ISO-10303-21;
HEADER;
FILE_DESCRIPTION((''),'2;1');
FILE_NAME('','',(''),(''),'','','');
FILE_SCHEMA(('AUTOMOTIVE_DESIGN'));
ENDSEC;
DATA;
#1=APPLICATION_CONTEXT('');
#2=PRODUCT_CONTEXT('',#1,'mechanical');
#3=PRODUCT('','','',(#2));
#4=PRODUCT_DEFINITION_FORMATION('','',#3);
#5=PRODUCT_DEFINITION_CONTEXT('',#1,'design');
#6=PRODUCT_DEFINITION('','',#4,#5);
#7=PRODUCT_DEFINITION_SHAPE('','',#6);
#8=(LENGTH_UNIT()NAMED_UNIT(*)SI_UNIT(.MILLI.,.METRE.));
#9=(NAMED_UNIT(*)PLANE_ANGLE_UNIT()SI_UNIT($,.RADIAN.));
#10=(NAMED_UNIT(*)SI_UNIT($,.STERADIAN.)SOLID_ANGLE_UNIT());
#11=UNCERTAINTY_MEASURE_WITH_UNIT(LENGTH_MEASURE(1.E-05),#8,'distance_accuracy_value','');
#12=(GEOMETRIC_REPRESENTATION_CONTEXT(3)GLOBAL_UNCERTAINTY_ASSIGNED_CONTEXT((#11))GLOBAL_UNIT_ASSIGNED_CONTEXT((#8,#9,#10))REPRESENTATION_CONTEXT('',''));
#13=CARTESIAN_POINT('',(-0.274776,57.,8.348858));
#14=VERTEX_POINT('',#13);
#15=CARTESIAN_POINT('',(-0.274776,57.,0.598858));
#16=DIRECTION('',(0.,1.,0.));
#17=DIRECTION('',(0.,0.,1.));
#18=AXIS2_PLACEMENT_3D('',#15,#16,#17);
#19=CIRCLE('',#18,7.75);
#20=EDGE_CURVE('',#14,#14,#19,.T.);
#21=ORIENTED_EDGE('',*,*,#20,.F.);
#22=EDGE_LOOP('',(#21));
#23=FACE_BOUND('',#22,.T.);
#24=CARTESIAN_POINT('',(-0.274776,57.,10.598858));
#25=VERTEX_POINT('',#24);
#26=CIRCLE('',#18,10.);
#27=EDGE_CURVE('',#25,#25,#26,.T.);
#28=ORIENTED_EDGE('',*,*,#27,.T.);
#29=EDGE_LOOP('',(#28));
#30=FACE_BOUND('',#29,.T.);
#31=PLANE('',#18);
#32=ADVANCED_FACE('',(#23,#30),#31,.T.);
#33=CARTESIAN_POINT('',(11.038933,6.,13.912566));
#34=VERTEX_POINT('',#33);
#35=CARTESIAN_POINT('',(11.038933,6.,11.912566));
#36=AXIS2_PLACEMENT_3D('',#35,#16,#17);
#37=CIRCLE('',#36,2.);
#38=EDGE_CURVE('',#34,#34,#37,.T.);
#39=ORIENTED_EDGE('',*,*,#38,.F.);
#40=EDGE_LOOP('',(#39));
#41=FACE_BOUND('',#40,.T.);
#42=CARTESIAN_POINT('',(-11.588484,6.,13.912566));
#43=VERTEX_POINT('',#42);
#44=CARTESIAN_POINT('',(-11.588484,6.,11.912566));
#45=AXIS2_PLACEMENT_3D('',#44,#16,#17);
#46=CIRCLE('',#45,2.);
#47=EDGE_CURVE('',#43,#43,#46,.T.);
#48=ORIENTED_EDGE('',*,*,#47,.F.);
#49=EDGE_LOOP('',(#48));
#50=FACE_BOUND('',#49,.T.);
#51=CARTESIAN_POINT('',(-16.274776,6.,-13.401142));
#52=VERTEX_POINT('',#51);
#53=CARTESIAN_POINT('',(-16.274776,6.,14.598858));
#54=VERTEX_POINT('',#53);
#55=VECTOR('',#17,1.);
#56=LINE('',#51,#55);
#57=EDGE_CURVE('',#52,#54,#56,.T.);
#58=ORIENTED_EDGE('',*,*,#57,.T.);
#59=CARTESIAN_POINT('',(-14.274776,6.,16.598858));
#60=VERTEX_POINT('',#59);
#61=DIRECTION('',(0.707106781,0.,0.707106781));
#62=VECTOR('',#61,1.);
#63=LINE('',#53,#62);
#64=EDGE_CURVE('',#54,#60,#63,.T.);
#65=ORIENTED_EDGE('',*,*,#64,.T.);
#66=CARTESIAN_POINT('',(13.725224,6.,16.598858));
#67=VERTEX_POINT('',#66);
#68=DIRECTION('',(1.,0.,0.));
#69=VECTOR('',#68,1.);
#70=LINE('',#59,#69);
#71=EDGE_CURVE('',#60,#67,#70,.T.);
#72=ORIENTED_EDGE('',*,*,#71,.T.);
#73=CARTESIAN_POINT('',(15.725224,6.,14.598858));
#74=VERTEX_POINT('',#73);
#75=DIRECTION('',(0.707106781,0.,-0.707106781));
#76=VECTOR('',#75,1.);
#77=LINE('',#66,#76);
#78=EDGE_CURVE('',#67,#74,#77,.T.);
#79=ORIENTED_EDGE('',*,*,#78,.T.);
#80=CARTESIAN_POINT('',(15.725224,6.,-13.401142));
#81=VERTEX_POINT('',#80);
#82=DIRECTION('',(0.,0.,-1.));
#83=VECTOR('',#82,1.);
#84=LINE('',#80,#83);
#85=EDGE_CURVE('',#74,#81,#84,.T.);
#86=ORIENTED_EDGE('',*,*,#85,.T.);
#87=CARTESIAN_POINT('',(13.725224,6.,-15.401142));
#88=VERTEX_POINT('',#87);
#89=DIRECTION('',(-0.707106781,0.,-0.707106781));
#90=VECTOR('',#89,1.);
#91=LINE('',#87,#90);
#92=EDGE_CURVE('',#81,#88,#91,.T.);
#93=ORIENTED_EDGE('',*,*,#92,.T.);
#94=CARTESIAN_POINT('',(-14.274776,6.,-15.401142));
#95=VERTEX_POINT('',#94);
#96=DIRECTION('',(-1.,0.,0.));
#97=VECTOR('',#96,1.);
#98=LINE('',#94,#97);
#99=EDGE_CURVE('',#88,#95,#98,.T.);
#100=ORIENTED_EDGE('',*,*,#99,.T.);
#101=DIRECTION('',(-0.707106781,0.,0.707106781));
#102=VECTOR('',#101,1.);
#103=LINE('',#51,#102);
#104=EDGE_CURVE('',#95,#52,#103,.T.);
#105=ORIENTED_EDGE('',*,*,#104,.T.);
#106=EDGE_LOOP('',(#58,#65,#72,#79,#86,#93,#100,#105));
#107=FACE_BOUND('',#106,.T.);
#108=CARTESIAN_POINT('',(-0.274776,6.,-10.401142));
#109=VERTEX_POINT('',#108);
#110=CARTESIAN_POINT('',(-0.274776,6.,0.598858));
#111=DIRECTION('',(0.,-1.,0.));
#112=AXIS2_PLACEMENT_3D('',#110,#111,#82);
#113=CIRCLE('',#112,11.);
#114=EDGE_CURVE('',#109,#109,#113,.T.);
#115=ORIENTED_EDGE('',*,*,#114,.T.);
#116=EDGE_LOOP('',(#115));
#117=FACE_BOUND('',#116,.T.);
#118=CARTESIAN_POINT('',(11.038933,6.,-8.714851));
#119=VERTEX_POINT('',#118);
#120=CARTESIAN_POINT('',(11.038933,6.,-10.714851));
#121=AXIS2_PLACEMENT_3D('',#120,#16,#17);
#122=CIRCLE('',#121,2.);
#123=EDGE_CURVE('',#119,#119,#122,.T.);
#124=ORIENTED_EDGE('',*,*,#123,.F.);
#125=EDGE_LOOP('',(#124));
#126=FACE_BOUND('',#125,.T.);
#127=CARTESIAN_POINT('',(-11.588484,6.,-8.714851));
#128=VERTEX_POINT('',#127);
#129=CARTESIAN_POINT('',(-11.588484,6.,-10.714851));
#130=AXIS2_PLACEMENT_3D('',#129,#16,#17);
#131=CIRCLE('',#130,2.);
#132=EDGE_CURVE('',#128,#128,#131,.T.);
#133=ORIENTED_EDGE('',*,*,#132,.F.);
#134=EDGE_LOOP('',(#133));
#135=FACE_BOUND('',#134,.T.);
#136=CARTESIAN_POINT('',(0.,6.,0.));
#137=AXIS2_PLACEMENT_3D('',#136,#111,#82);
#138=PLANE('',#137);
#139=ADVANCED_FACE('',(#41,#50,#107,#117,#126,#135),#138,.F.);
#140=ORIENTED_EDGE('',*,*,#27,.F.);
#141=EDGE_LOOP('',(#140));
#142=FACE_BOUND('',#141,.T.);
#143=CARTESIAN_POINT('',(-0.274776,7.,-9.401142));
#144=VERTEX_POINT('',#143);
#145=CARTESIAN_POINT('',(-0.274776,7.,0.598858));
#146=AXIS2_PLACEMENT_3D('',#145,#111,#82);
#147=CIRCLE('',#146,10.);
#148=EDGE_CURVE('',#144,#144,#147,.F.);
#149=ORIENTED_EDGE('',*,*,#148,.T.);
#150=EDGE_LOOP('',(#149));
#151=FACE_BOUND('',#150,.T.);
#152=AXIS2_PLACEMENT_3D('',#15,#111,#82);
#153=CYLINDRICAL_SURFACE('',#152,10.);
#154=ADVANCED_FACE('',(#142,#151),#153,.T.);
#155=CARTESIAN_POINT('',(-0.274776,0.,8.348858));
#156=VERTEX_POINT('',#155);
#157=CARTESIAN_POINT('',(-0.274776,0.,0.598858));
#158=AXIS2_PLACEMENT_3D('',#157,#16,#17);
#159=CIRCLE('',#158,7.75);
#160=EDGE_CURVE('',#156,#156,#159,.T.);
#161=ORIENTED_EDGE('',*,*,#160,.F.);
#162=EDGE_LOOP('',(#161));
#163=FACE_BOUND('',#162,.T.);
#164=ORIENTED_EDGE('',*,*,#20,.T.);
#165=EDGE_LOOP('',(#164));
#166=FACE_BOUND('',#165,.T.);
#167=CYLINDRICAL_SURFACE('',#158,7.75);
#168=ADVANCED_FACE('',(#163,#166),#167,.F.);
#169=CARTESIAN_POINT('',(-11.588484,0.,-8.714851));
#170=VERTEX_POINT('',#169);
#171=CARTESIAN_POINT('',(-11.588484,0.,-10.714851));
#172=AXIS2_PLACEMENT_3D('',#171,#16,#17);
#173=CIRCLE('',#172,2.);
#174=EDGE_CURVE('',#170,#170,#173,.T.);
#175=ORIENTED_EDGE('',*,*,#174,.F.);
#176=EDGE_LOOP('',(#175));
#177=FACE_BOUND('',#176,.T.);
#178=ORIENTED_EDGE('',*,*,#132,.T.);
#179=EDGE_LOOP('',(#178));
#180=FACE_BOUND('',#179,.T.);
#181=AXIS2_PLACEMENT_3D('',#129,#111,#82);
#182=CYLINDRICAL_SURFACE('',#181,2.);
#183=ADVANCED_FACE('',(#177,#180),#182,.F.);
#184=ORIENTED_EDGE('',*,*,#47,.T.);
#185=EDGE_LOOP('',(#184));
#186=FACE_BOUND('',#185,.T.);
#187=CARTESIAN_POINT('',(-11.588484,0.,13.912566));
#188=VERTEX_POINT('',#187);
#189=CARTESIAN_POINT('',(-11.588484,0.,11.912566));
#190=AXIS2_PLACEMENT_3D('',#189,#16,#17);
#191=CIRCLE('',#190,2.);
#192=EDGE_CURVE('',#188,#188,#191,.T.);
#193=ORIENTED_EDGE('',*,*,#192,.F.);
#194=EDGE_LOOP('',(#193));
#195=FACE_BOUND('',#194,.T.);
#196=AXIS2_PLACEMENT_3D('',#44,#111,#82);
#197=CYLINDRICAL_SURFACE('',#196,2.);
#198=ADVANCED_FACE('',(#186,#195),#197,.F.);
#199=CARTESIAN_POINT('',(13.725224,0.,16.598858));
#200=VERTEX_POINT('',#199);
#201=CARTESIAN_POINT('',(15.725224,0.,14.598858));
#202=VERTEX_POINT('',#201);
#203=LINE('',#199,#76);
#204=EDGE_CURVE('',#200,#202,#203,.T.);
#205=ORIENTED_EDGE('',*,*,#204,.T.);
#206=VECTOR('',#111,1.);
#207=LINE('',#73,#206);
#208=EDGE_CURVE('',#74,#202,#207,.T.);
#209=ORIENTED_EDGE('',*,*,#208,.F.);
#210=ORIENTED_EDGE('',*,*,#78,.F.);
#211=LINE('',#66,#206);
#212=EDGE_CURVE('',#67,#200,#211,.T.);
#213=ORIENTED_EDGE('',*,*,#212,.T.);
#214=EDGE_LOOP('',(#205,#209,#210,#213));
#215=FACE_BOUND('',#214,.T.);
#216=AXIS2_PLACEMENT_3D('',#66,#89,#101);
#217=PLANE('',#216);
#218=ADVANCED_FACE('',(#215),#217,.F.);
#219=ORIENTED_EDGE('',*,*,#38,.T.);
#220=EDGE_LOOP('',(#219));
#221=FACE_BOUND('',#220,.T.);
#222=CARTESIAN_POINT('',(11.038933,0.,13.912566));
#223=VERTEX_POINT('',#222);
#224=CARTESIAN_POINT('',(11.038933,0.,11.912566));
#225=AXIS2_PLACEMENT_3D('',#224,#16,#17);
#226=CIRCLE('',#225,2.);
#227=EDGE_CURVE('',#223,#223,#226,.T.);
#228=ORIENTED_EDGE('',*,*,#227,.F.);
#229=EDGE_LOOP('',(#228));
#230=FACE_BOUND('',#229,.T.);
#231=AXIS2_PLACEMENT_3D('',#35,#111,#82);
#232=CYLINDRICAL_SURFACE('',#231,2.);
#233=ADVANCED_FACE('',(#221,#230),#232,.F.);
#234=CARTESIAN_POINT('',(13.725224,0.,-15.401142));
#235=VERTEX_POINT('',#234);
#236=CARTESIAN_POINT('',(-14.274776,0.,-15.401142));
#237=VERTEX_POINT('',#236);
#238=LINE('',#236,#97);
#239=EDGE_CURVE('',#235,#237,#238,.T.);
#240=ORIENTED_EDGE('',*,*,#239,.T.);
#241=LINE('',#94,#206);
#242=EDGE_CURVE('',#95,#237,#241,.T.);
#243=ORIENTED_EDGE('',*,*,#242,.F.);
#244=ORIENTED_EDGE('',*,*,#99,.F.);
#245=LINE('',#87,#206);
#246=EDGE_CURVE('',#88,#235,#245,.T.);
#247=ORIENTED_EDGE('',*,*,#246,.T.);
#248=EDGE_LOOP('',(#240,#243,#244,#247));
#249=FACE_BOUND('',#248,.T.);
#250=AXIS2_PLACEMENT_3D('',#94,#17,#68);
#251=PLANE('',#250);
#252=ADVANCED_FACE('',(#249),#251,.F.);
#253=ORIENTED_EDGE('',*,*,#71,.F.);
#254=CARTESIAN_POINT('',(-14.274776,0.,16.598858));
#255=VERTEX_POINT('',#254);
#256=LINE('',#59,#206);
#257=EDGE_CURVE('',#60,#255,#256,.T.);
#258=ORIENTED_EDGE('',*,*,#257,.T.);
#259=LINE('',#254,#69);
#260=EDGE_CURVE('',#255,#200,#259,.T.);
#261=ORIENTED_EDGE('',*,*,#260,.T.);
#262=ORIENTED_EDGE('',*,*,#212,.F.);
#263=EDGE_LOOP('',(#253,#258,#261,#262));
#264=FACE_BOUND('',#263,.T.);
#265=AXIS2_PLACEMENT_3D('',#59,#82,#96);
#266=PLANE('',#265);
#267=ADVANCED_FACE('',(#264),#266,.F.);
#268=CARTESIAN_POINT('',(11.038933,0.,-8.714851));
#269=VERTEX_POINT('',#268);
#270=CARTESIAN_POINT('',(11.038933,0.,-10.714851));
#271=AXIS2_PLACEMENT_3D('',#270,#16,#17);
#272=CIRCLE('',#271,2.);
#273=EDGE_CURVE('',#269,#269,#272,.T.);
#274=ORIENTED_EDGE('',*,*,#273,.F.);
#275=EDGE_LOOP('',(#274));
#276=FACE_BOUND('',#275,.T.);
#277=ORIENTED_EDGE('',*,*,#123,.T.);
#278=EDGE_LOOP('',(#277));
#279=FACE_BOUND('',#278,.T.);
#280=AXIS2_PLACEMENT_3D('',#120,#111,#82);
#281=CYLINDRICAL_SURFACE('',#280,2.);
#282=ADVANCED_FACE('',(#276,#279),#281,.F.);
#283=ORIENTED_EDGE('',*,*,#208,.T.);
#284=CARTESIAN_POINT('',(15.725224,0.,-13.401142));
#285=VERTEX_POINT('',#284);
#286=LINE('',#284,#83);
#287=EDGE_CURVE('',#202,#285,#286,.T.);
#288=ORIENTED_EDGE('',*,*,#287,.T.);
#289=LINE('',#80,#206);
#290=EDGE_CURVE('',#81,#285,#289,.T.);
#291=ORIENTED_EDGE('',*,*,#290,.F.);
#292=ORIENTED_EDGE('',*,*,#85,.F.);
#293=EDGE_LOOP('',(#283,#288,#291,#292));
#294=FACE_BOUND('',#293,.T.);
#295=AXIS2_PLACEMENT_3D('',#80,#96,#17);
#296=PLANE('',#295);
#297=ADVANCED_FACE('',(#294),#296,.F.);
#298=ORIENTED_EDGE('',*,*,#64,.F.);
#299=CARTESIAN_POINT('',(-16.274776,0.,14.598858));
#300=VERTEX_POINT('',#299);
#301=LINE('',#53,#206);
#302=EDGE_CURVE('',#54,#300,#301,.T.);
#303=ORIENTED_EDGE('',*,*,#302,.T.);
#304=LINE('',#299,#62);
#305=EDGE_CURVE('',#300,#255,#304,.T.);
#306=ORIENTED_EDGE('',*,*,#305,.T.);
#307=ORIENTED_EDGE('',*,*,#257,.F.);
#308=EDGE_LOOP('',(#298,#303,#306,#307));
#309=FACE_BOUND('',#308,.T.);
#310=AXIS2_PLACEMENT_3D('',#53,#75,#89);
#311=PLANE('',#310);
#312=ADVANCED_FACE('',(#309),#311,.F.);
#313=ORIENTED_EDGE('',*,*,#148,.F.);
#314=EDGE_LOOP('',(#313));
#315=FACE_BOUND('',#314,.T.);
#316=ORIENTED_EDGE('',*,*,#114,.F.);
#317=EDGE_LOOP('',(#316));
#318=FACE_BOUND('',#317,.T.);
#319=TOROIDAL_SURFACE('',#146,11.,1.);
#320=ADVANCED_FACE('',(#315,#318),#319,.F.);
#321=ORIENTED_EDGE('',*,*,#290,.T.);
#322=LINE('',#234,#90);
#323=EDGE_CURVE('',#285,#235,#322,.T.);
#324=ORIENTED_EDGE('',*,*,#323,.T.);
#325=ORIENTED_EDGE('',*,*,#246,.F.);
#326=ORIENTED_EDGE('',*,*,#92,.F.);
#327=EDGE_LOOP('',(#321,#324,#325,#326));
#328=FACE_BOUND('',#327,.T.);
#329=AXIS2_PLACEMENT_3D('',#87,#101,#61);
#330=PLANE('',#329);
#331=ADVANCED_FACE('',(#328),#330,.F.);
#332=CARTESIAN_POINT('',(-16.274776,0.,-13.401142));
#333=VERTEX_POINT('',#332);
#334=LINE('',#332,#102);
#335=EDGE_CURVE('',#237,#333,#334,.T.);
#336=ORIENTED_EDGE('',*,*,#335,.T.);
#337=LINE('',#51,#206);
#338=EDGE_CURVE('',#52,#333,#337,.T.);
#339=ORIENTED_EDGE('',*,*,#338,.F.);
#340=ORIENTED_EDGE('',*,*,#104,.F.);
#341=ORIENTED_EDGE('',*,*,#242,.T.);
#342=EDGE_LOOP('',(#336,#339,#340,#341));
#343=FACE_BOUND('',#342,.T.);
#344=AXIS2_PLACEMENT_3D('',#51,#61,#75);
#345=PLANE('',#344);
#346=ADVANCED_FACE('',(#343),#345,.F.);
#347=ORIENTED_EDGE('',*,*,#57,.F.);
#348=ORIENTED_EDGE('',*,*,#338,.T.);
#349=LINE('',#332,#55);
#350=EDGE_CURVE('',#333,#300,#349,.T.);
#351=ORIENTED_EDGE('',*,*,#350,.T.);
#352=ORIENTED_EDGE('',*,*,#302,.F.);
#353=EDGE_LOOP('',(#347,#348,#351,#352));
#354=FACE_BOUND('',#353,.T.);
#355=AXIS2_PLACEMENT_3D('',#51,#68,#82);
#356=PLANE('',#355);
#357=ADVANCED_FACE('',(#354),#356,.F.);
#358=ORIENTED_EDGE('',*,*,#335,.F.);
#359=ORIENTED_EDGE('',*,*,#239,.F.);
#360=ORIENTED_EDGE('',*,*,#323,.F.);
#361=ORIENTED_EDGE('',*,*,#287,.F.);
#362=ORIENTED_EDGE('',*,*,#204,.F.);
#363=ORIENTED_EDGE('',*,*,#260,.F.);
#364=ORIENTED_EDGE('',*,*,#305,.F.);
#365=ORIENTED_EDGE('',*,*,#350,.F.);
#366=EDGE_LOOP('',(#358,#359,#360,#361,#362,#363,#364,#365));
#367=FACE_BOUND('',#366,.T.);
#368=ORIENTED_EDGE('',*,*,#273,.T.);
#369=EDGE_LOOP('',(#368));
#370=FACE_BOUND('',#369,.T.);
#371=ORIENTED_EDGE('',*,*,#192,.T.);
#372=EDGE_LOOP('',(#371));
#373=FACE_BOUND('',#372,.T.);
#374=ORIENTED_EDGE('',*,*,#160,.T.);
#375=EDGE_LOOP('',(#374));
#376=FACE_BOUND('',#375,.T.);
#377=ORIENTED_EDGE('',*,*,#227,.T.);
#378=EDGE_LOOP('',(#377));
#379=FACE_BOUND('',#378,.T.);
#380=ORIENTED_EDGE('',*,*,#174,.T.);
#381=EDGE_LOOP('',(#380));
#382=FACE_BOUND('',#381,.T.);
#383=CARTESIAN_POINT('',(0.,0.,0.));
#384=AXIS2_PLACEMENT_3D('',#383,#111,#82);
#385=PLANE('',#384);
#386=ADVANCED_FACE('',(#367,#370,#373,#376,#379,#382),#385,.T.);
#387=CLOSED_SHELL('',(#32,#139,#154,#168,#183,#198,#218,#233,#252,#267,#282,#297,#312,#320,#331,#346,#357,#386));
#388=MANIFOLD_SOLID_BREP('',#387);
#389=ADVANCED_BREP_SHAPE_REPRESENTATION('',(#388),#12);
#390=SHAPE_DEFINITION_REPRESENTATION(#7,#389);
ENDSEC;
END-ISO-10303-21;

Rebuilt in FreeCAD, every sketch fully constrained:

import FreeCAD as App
import Part
import Sketcher

V = App.Vector


def edges_at(feature, points):
    """Names of the edges that pass closest to the given points."""
    edges = feature.Shape.Edges
    near = lambda p: min(range(len(edges)), key=lambda i: edges[i].distToShape(Part.Vertex(*p))[0])
    return sorted({f"Edge{near(p) + 1}" for p in points})


def add_polygon(sketch, points):
    """Adds a closed chain of lines whose ends are joined by coincident constraints."""
    first, n = sketch.GeometryCount, len(points)
    for a, b in zip(points, points[1:] + points[:1]):
        sketch.addGeometry(Part.LineSegment(App.Vector(*a, 0), App.Vector(*b, 0)), False)
    for i in range(n):
        sketch.addConstraint(Sketcher.Constraint("Coincident", first + i, 2, first + (i + 1) % n, 1))

doc = App.newDocument("Part")
body = doc.addObject("PartDesign::Body", "Body")

# Sketch on XZ plane
sketch1 = doc.addObject("Sketcher::SketchObject", "Sketch")
body.addObject(sketch1)
sketch1.AttachmentSupport = (doc.XZ_Plane, [""])
sketch1.MapMode = "FlatFace"
add_polygon(sketch1, [(-14.3, -15.4), (-16.3, -13.4), (-16.3, 14.6), (-14.3, 16.6), (13.7, 16.6), (15.7, 14.6), (15.7, -13.4), (13.7, -15.4)])  # lines 0-7
sketch1.addGeometry(Part.Circle(V(11, 11.9, 0), V(0, 0, 1), 2), False)  # 8
sketch1.addGeometry(Part.Circle(V(-11.6, 11.9, 0), V(0, 0, 1), 2), False)  # 9
sketch1.addGeometry(Part.Circle(V(11, -10.7, 0), V(0, 0, 1), 2), False)  # 10
sketch1.addGeometry(Part.Circle(V(-11.6, -10.7, 0), V(0, 0, 1), 2), False)  # 11
sketch1.addConstraint([
    Sketcher.Constraint("Vertical", 1),
    Sketcher.Constraint("Horizontal", 3),
    Sketcher.Constraint("Vertical", 5),
    Sketcher.Constraint("Horizontal", 7),
    Sketcher.Constraint("Equal", 8, 9),
    Sketcher.Constraint("Equal", 9, 10),
    Sketcher.Constraint("Equal", 10, 11),
    Sketcher.Constraint("Perpendicular", 0, 2),
    Sketcher.Constraint("Perpendicular", 2, 4),
    Sketcher.Constraint("Perpendicular", 4, 6),
    Sketcher.Constraint("Horizontal", 8, 3, 9, 3),
    Sketcher.Constraint("Horizontal", 10, 3, 11, 3),
    Sketcher.Constraint("Horizontal", 1, 2, 4, 2),
    Sketcher.Constraint("Horizontal", 0, 2, 5, 2),
    Sketcher.Constraint("Vertical", 8, 3, 10, 3),
    Sketcher.Constraint("Vertical", 9, 3, 11, 3),
    Sketcher.Constraint("Vertical", 3, 2, 6, 2),
    Sketcher.Constraint("Vertical", 2, 2, 7, 2),
    Sketcher.Constraint("Equal", 7, 1),
    Sketcher.Constraint("Diameter", 8, 4.0),
    Sketcher.Constraint("DistanceX", 3, 1, 3, 2, 28.0),
    Sketcher.Constraint("DistanceX", 1, 2, 2, 2, 2.0),
    Sketcher.Constraint("DistanceY", 10, 3, -1, 1, 10.714851),
    Sketcher.Constraint("DistanceX", 0, 2, 11, 3, 4.686292),
    Sketcher.Constraint("DistanceY", 0, 2, 11, 3, 2.686292),
    Sketcher.Constraint("DistanceY", 0, 2, 9, 3, 25.313708),
    Sketcher.Constraint("DistanceX", 0, 2, 10, 3, 27.313708),
    Sketcher.Constraint("DistanceX", -1, 1, 8, 3, 11.038933),
])
pad1 = doc.addObject("PartDesign::Pad", "Pad")
body.addObject(pad1)
pad1.Profile = sketch1
pad1.Length = 6
pad1.Reversed = True

# Sketch on XZ plane
sketch2 = doc.addObject("Sketcher::SketchObject", "Sketch001")
body.addObject(sketch2)
sketch2.AttachmentSupport = (doc.XZ_Plane, [""])
sketch2.MapMode = "FlatFace"
sketch2.AttachmentOffset = App.Placement(V(0, 0, -6), App.Rotation())
sketch2.addGeometry(Part.Circle(V(0, 1, 0), V(0, 0, 1), 10), False)
sketch2.addConstraint([
    Sketcher.Constraint("Diameter", 0, 20.0),
    Sketcher.Constraint("DistanceX", 0, 3, -1, 1, 0.274776),
    Sketcher.Constraint("DistanceY", -1, 1, 0, 3, 0.598858),
])
pad2 = doc.addObject("PartDesign::Pad", "Pad001")
body.addObject(pad2)
pad2.Profile = sketch2
pad2.Length = 51
pad2.Reversed = True

# Sketch on XZ plane
sketch3 = doc.addObject("Sketcher::SketchObject", "Sketch002")
body.addObject(sketch3)
sketch3.AttachmentSupport = (doc.XZ_Plane, [""])
sketch3.MapMode = "FlatFace"
sketch3.AttachmentOffset = App.Placement(V(0, 0, -57), App.Rotation())
sketch3.addGeometry(Part.Circle(V(0, 1, 0), V(0, 0, 1), 8), False)
sketch3.addConstraint([
    Sketcher.Constraint("Diameter", 0, 15.5),
    Sketcher.Constraint("DistanceX", 0, 3, -1, 1, 0.274776),
    Sketcher.Constraint("DistanceY", -1, 1, 0, 3, 0.598858),
])
pocket1 = doc.addObject("PartDesign::Pocket", "Pocket")
body.addObject(pocket1)
pocket1.Profile = sketch3
pocket1.Type = "ThroughAll"
pocket1.Reversed = True
doc.recompute()

fillet = doc.addObject("PartDesign::Fillet", "Fillet")
body.addObject(fillet)
fillet.Base = (pocket1, edges_at(pocket1, [(-0.275, 6, 10.599)]))
fillet.Radius = 1

doc.recompute()
